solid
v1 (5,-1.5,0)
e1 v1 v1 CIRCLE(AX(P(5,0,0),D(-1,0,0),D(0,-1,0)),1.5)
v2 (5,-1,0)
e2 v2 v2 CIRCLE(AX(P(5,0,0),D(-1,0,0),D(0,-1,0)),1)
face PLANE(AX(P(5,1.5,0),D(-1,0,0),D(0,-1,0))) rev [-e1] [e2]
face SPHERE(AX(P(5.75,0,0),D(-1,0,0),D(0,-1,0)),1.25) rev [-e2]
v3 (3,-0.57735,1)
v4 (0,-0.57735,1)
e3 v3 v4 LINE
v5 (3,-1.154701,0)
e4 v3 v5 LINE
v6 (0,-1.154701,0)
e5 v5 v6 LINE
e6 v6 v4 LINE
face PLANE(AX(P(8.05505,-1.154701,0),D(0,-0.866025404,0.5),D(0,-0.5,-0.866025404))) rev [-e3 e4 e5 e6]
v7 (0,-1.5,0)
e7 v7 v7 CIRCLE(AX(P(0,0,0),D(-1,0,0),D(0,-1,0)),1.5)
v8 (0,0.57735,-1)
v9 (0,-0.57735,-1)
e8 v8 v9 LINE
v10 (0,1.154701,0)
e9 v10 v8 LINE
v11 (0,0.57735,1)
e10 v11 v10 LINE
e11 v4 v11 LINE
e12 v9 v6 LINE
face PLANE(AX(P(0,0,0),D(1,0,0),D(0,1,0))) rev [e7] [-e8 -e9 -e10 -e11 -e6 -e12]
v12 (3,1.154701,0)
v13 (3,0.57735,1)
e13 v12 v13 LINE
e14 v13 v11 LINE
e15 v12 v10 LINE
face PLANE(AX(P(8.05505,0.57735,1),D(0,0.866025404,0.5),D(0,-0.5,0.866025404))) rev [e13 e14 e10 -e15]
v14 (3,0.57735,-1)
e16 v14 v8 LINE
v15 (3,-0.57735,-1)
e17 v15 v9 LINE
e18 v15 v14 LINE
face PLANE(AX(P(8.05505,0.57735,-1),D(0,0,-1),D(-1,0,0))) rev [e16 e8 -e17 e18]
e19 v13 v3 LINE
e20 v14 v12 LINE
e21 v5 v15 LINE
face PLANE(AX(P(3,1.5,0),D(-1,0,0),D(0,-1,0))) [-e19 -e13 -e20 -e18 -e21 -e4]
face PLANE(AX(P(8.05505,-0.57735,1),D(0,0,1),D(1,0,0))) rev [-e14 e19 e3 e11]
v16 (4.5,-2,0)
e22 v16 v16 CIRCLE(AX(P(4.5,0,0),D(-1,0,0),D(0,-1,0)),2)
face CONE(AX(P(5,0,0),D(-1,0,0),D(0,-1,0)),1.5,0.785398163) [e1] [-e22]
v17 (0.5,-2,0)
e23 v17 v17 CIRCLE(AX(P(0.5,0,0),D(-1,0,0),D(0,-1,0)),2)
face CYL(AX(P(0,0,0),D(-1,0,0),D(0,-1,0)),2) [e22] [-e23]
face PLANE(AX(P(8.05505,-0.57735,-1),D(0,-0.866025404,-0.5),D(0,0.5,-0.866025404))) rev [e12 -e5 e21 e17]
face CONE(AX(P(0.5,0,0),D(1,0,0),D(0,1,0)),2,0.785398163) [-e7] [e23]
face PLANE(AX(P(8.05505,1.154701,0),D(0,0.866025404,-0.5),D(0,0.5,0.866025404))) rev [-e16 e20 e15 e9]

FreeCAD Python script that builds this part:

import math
import FreeCAD as App
import Part
import Sketcher

V = App.Vector
Q = App.Units.Quantity


def add_polygon(sketch, points):
    """Adds a closed chain of lines whose ends are joined by coincident constraints."""
    first, n = sketch.GeometryCount, len(points)
    for a, b in zip(points, points[1:] + points[:1]):
        sketch.addGeometry(Part.LineSegment(App.Vector(*a, 0), App.Vector(*b, 0)), False)
    for i in range(n):
        sketch.addConstraint(Sketcher.Constraint("Coincident", first + i, 2, first + (i + 1) % n, 1))

doc = App.newDocument("Part")
body = doc.addObject("PartDesign::Body", "Body")

# Sketch on XY plane
sketch1 = body.newObject("Sketcher::SketchObject", "Sketch")
sketch1.AttachmentSupport = (doc.getObject("XY_Plane"), [""])
sketch1.MapMode = "FlatFace"
sketch1.addGeometry(Part.LineSegment(V(0, 1.5, 0), V(0, 0, 0)), False)
sketch1.addGeometry(Part.LineSegment(V(0, 0, 0), V(4.5, 0, 0)), False)
sketch1.addGeometry(Part.ArcOfCircle(Part.Circle(V(5.8, 0, 0), V(0, 0, 1), 1.2), math.radians(127), math.radians(180)), False)
sketch1.addGeometry(Part.LineSegment(V(5, 1, 0), V(5, 1.5, 0)), False)
sketch1.addGeometry(Part.LineSegment(V(5, 1.5, 0), V(4.5, 2, 0)), False)
sketch1.addGeometry(Part.LineSegment(V(4.5, 2, 0), V(0.5, 2, 0)), False)
sketch1.addGeometry(Part.LineSegment(V(0.5, 2, 0), V(0, 1.5, 0)), False)
sketch1.addConstraint(Sketcher.Constraint("Coincident", 0, 2, 1, 1))
sketch1.addConstraint(Sketcher.Constraint("Coincident", 1, 2, 2, 2))
sketch1.addConstraint(Sketcher.Constraint("Coincident", 2, 1, 3, 1))
sketch1.addConstraint(Sketcher.Constraint("Coincident", 3, 2, 4, 1))
sketch1.addConstraint(Sketcher.Constraint("Coincident", 4, 2, 5, 1))
sketch1.addConstraint(Sketcher.Constraint("Coincident", 5, 2, 6, 1))
sketch1.addConstraint(Sketcher.Constraint("Coincident", 6, 2, 0, 1))
sketch1.addConstraint(Sketcher.Constraint("Vertical", 0))
sketch1.addConstraint(Sketcher.Constraint("Horizontal", 1))
sketch1.addConstraint(Sketcher.Constraint("Vertical", 3))
sketch1.addConstraint(Sketcher.Constraint("Horizontal", 5))
sketch1.addConstraint(Sketcher.Constraint("Coincident", 0, 2, -1, 1))
sketch1.addConstraint(Sketcher.Constraint("PointOnObject", 2, 3, -1))
sketch1.addConstraint(Sketcher.Constraint("Perpendicular", 4, 6))
sketch1.addConstraint(Sketcher.Constraint("Horizontal", 3, 2, 6, 2))
sketch1.addConstraint(Sketcher.Constraint("Vertical", 1, 2, 4, 2))
sketch1.addConstraint(Sketcher.Constraint("Equal", 4, 6))
sketch1.addConstraint(Sketcher.Constraint("DistanceX", 5, 2, 5, 1, Q("4 mm")))
sketch1.addConstraint(Sketcher.Constraint("Radius", 2, Q("1.25 mm")))
sketch1.addConstraint(Sketcher.Constraint("DistanceX", 1, 1, 1, 2, Q("4.5 mm")))
sketch1.addConstraint(Sketcher.Constraint("DistanceY", 0, 2, 0, 1, Q("1.5 mm")))
revolution = body.newObject("PartDesign::Revolution", "Revolution")
revolution.Profile = sketch1
revolution.ReferenceAxis = (sketch1, ["H_Axis"])
revolution.Angle = 360

# Sketch on YZ plane
sketch2 = body.newObject("Sketcher::SketchObject", "Sketch001")
sketch2.AttachmentSupport = (doc.getObject("YZ_Plane"), [""])
sketch2.MapMode = "FlatFace"
add_polygon(sketch2, [(1.2, 0), (0.6, -1), (-0.6, -1), (-1.2, 0), (-0.6, 1), (0.6, 1)])  # lines 0-5
sketch2.addConstraint(Sketcher.Constraint("Horizontal", 1))
sketch2.addConstraint(Sketcher.Constraint("Horizontal", 4))
sketch2.addConstraint(Sketcher.Constraint("Symmetric", 0, 2, 3, 2, -1, 1))
sketch2.addConstraint(Sketcher.Constraint("Symmetric", 2, 2, 5, 2, -1, 1))
sketch2.addConstraint(Sketcher.Constraint("PointOnObject", 2, 2, -1))
sketch2.addConstraint(Sketcher.Constraint("Parallel", 2, 5))
sketch2.addConstraint(Sketcher.Constraint("Vertical", 1, 2, 3, 2))
sketch2.addConstraint(Sketcher.Constraint("Angle", 0, Q("-120 deg")))
sketch2.addConstraint(Sketcher.Constraint("DistanceY", 0, 2, -1, 1, Q("1 mm")))
sketch2.addConstraint(Sketcher.Constraint("DistanceX", 1, 2, 1, 1, Q("1.154701 mm")))
pocket1 = body.newObject("PartDesign::Pocket", "Pocket")
pocket1.Profile = sketch2
pocket1.Length = 3
pocket1.Reversed = True

doc.recompute()
